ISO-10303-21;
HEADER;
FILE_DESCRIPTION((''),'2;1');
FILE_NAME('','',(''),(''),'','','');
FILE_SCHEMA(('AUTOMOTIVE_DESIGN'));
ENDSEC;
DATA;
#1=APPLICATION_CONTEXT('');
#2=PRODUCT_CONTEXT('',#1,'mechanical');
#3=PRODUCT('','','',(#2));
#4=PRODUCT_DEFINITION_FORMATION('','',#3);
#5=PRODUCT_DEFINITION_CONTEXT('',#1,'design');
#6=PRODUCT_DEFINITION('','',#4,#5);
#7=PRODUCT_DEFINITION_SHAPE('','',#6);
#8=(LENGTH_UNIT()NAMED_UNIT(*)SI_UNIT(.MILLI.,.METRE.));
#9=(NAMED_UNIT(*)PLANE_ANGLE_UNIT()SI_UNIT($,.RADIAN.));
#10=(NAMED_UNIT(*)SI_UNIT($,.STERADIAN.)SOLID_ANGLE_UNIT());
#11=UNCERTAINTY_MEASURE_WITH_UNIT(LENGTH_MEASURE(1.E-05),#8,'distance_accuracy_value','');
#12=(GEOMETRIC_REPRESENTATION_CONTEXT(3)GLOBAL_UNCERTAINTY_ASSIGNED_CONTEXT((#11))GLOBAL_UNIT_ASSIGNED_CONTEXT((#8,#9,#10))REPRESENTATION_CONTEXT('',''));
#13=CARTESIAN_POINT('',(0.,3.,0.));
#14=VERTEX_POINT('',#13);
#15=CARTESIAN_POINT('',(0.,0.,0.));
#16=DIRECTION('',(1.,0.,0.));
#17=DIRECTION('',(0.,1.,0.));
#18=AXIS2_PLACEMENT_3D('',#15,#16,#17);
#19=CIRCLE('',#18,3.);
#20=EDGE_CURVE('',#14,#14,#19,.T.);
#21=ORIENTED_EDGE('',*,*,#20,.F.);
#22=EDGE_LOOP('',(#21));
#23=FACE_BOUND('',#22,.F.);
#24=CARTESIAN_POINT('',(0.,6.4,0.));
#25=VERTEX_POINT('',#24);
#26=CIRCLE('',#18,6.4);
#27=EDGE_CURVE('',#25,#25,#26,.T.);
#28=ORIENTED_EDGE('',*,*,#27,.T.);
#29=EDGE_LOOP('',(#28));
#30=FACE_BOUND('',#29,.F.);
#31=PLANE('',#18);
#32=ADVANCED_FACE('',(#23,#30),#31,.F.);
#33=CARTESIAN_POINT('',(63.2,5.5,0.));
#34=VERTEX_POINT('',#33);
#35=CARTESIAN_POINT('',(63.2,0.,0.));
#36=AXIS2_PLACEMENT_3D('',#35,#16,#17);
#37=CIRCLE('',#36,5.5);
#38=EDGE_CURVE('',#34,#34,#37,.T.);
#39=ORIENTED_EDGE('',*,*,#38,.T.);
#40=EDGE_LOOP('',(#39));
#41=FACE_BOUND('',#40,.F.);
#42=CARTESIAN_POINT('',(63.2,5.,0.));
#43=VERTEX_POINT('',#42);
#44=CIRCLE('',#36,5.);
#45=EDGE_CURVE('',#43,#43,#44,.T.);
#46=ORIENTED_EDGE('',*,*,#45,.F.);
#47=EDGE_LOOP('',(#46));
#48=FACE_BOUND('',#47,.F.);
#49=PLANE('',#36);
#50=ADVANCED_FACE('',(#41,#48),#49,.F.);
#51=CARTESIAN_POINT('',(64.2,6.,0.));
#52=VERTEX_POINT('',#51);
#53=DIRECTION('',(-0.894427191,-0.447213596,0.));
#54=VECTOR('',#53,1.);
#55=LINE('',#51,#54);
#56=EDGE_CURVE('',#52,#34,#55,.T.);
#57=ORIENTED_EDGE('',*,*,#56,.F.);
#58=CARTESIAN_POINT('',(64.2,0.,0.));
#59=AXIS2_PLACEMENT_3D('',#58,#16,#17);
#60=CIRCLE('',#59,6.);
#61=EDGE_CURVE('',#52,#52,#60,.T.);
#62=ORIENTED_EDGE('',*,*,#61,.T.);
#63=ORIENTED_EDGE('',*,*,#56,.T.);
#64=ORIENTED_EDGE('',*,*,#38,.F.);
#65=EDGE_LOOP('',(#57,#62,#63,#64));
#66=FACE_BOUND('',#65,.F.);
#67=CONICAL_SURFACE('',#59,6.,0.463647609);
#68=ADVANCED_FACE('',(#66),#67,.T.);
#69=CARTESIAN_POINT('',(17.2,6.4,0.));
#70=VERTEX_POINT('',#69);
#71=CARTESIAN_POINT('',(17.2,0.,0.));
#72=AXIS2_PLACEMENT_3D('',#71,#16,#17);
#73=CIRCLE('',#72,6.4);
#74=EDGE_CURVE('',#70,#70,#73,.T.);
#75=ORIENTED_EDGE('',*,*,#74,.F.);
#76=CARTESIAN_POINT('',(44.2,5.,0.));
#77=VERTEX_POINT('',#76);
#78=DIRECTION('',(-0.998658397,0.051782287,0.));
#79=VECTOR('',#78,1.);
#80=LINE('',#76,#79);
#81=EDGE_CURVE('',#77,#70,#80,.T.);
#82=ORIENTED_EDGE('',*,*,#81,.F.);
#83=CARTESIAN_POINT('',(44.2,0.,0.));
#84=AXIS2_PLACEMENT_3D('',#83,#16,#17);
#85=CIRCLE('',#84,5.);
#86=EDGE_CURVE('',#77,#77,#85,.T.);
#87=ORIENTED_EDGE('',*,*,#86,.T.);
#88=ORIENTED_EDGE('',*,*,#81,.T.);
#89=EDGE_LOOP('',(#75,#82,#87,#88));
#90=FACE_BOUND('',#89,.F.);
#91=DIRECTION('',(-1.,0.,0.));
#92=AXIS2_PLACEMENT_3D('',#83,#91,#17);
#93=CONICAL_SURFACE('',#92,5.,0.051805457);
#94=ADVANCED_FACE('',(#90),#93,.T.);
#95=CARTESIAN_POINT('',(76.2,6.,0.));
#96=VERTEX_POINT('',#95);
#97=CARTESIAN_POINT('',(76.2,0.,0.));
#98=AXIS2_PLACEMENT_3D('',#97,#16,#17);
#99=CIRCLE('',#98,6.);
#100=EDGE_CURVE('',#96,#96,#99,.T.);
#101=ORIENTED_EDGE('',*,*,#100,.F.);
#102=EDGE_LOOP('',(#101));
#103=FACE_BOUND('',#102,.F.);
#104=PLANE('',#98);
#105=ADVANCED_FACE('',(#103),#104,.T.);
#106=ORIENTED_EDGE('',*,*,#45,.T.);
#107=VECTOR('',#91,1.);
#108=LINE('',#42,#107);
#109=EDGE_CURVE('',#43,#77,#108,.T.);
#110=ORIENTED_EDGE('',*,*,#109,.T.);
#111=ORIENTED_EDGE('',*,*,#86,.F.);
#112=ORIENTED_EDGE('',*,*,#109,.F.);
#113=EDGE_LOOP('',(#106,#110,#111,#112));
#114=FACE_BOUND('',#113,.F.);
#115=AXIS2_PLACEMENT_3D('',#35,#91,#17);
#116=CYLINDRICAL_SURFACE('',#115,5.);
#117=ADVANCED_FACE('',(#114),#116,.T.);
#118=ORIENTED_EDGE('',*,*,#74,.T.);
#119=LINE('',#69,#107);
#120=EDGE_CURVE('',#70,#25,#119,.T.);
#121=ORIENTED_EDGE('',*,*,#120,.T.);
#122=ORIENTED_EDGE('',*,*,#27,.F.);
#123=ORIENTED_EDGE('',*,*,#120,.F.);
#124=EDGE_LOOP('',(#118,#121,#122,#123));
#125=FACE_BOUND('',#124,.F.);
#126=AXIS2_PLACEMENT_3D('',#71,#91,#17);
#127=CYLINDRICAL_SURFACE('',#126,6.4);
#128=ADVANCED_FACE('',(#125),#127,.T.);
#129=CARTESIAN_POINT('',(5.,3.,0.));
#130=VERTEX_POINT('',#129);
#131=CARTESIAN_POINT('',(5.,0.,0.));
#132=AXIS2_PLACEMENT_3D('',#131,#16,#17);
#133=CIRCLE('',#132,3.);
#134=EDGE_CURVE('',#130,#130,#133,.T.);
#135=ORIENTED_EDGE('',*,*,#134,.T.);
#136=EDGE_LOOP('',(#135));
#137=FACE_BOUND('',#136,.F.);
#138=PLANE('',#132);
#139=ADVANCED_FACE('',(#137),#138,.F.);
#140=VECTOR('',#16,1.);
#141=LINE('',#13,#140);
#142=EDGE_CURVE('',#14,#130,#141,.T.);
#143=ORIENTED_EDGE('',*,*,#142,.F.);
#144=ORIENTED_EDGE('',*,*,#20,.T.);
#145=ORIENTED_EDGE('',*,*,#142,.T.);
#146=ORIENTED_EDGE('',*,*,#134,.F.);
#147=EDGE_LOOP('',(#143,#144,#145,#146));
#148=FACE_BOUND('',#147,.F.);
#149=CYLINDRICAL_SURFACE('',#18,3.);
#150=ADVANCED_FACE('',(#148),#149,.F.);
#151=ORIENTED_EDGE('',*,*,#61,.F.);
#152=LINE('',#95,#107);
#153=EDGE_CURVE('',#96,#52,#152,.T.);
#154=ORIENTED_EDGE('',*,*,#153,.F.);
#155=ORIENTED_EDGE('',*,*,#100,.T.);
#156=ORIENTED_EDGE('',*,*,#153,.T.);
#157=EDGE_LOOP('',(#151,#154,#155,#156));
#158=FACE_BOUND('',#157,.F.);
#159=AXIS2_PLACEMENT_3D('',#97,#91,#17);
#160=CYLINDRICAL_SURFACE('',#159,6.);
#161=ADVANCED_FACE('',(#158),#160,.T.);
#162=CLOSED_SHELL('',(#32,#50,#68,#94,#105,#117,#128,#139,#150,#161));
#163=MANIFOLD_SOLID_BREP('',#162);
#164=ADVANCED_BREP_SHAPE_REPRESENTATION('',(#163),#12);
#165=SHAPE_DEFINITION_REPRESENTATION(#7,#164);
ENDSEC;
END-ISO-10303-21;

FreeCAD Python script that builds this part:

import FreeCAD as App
import Part
import Sketcher


def add_polygon(sketch, points):
    """Adds a closed chain of lines whose ends are joined by coincident constraints."""
    first, n = sketch.GeometryCount, len(points)
    for a, b in zip(points, points[1:] + points[:1]):
        sketch.addGeometry(Part.LineSegment(App.Vector(*a, 0), App.Vector(*b, 0)), False)
    for i in range(n):
        sketch.addConstraint(Sketcher.Constraint("Coincident", first + i, 2, first + (i + 1) % n, 1))

doc = App.newDocument("Part")
body = doc.addObject("PartDesign::Body", "Body")

# Sketch on XY plane
sketch1 = doc.addObject("Sketcher::SketchObject", "Sketch")
body.addObject(sketch1)
sketch1.AttachmentSupport = (doc.XY_Plane, [""])
sketch1.MapMode = "FlatFace"
add_polygon(sketch1, [(5, 3), (5, 0), (76.2, 0), (76.2, 6), (64.2, 6), (63.2, 5.5), (63.2, 5), (44.2, 5), (17.2, 6.4), (0, 6.4), (0, 3)])  # lines 0-10
sketch1.addConstraint([
    Sketcher.Constraint("Vertical", 0),
    Sketcher.Constraint("Horizontal", 1),
    Sketcher.Constraint("Vertical", 2),
    Sketcher.Constraint("Horizontal", 3),
    Sketcher.Constraint("Vertical", 5),
    Sketcher.Constraint("Horizontal", 6),
    Sketcher.Constraint("Horizontal", 8),
    Sketcher.Constraint("Vertical", 9),
    Sketcher.Constraint("Horizontal", 10),
    Sketcher.Constraint("PointOnObject", 0, 2, -1),
    Sketcher.Constraint("PointOnObject", 8, 2, -2),
    Sketcher.Constraint("DistanceX", 3, 2, 3, 1, 12.0),
    Sketcher.Constraint("DistanceX", 10, 1, 10, 2, 5.0),
    Sketcher.Constraint("DistanceY", 2, 1, 2, 2, 6.0),
    Sketcher.Constraint("DistanceY", 5, 2, 5, 1, 0.5),
    Sketcher.Constraint("DistanceY", -1, 1, 5, 2, 5.0),
    Sketcher.Constraint("DistanceX", 4, 2, 3, 2, 1.0),
    Sketcher.Constraint("DistanceX", 6, 2, 2, 2, 32.0),
    Sketcher.Constraint("DistanceX", -1, 1, 1, 2, 76.2),
    Sketcher.Constraint("DistanceY", 0, 2, 0, 1, 3.0),
    Sketcher.Constraint("DistanceX", 8, 2, 8, 1, 17.2),
    Sketcher.Constraint("DistanceY", 9, 2, 9, 1, 3.4),
])
revolution = doc.addObject("PartDesign::Revolution", "Revolution")
body.addObject(revolution)
revolution.Profile = sketch1
revolution.ReferenceAxis = (sketch1, ["H_Axis"])
revolution.Angle = 360

doc.recompute()
